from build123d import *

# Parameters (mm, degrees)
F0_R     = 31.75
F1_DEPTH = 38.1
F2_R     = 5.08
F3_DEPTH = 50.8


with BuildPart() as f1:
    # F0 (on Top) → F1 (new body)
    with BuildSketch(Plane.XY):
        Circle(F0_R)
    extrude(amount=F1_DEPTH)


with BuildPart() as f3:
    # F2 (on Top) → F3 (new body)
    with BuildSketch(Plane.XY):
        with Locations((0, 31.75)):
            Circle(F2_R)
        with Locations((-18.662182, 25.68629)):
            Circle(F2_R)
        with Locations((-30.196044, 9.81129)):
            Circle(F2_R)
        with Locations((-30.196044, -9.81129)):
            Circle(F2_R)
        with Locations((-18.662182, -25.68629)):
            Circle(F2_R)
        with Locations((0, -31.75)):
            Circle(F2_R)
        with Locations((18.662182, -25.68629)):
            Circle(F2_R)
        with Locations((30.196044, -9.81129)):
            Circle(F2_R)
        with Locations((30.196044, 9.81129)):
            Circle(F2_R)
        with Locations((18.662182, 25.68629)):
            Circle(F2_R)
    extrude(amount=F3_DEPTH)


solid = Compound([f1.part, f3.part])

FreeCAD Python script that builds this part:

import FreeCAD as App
import Part
import Sketcher
Q = App.Units.Quantity

doc = App.newDocument("Part")
params = doc.addObject("Spreadsheet::Sheet", "Params")
for row, (alias, value) in enumerate([
    ("sketch1_diameter", "2.5 in"),
    ("pad1_length", "1.5 in"),
    ("sketch2_diameter", "0.4 in"),
    ("pad2_length", "2 in"),
], start=1):
    params.set(f"A{row}", alias)
    params.set(f"B{row}", "=" + value)
    params.setAlias(f"B{row}", alias)

body = doc.addObject("PartDesign::Body", "Body")

# Sketch on XY plane
sketch1 = body.newObject("Sketcher::SketchObject", "Sketch")
sketch1.AttachmentSupport = (doc.getObject("XY_Plane"), [""])
sketch1.MapMode = "FlatFace"
sketch1.addGeometry(Part.Circle(App.Vector(0, 0, 0), App.Vector(0, 0, 1), 32), False)
sketch1.addConstraint(Sketcher.Constraint("Coincident", 0, 3, -1, 1))
sketch1.addConstraint(Sketcher.Constraint("Diameter", 0, Q("2.5 in")))
sketch1.setExpression("Constraints[1]", "Params.sketch1_diameter")
pad1 = body.newObject("PartDesign::Pad", "Pad")
pad1.Profile = sketch1
pad1.setExpression("Length", "Params.pad1_length")
body2 = doc.addObject("PartDesign::Body", "Body001")
body2.AllowCompound = True

# Sketch on XY plane
sketch2 = body2.newObject("Sketcher::SketchObject", "Sketch001")
sketch2.AttachmentSupport = (doc.getObject("XY_Plane001"), [""])
sketch2.MapMode = "FlatFace"
sketch2.addGeometry(Part.Circle(App.Vector(0, 32, 0), App.Vector(0, 0, 1), 5), False)
sketch2.addGeometry(Part.Circle(App.Vector(-19, 26, 0), App.Vector(0, 0, 1), 5), False)
sketch2.addGeometry(Part.Circle(App.Vector(-30, 10, 0), App.Vector(0, 0, 1), 5), False)
sketch2.addGeometry(Part.Circle(App.Vector(-30, -10, 0), App.Vector(0, 0, 1), 5), False)
sketch2.addGeometry(Part.Circle(App.Vector(-19, -26, 0), App.Vector(0, 0, 1), 5), False)
sketch2.addGeometry(Part.Circle(App.Vector(0, -32, 0), App.Vector(0, 0, 1), 5), False)
sketch2.addGeometry(Part.Circle(App.Vector(19, -26, 0), App.Vector(0, 0, 1), 5), False)
sketch2.addGeometry(Part.Circle(App.Vector(30, -10, 0), App.Vector(0, 0, 1), 5), False)
sketch2.addGeometry(Part.Circle(App.Vector(30, 10, 0), App.Vector(0, 0, 1), 5), False)
sketch2.addGeometry(Part.Circle(App.Vector(19, 26, 0), App.Vector(0, 0, 1), 5), False)
sketch2.addConstraint(Sketcher.Constraint("Equal", 0, 1))
sketch2.addConstraint(Sketcher.Constraint("Equal", 1, 2))
sketch2.addConstraint(Sketcher.Constraint("Equal", 2, 3))
sketch2.addConstraint(Sketcher.Constraint("Equal", 3, 4))
sketch2.addConstraint(Sketcher.Constraint("Equal", 4, 5))
sketch2.addConstraint(Sketcher.Constraint("Equal", 5, 6))
sketch2.addConstraint(Sketcher.Constraint("Equal", 6, 7))
sketch2.addConstraint(Sketcher.Constraint("Equal", 7, 8))
sketch2.addConstraint(Sketcher.Constraint("Equal", 8, 9))
sketch2.addConstraint(Sketcher.Constraint("Symmetric", 0, 3, 5, 3, -1, 1))
sketch2.addConstraint(Sketcher.Constraint("Symmetric", 1, 3, 6, 3, -1, 1))
sketch2.addConstraint(Sketcher.Constraint("Symmetric", 2, 3, 7, 3, -1, 1))
sketch2.addConstraint(Sketcher.Constraint("Symmetric", 3, 3, 8, 3, -1, 1))
sketch2.addConstraint(Sketcher.Constraint("Symmetric", 4, 3, 9, 3, -1, 1))
sketch2.addConstraint(Sketcher.Constraint("Symmetric", 4, 3, 6, 3, -2))
sketch2.addConstraint(Sketcher.Constraint("Symmetric", 3, 3, 7, 3, -2))
sketch2.addConstraint(Sketcher.Constraint("PointOnObject", 0, 3, -2))
sketch2.addConstraint(Sketcher.Constraint("Diameter", 0, Q("0.4 in")))
sketch2.addConstraint(Sketcher.Constraint("DistanceY", 5, 3, 0, 3, Q("2.5 in")))
sketch2.addConstraint(Sketcher.Constraint("DistanceY", 2, 3, 1, 3, Q("0.625 in")))
sketch2.addConstraint(Sketcher.Constraint("DistanceY", -1, 1, 1, 3, Q("25.68629 mm")))
sketch2.addConstraint(Sketcher.Constraint("DistanceX", 2, 3, 1, 3, Q("11.533862 mm")))
sketch2.addConstraint(Sketcher.Constraint("DistanceX", 1, 3, -1, 1, Q("18.662182 mm")))
sketch2.setExpression("Constraints[17]", "Params.sketch2_diameter")
pad2 = body2.newObject("PartDesign::Pad", "Pad001")
pad2.Profile = sketch2
pad2.setExpression("Length", "Params.pad2_length")

doc.recompute()
